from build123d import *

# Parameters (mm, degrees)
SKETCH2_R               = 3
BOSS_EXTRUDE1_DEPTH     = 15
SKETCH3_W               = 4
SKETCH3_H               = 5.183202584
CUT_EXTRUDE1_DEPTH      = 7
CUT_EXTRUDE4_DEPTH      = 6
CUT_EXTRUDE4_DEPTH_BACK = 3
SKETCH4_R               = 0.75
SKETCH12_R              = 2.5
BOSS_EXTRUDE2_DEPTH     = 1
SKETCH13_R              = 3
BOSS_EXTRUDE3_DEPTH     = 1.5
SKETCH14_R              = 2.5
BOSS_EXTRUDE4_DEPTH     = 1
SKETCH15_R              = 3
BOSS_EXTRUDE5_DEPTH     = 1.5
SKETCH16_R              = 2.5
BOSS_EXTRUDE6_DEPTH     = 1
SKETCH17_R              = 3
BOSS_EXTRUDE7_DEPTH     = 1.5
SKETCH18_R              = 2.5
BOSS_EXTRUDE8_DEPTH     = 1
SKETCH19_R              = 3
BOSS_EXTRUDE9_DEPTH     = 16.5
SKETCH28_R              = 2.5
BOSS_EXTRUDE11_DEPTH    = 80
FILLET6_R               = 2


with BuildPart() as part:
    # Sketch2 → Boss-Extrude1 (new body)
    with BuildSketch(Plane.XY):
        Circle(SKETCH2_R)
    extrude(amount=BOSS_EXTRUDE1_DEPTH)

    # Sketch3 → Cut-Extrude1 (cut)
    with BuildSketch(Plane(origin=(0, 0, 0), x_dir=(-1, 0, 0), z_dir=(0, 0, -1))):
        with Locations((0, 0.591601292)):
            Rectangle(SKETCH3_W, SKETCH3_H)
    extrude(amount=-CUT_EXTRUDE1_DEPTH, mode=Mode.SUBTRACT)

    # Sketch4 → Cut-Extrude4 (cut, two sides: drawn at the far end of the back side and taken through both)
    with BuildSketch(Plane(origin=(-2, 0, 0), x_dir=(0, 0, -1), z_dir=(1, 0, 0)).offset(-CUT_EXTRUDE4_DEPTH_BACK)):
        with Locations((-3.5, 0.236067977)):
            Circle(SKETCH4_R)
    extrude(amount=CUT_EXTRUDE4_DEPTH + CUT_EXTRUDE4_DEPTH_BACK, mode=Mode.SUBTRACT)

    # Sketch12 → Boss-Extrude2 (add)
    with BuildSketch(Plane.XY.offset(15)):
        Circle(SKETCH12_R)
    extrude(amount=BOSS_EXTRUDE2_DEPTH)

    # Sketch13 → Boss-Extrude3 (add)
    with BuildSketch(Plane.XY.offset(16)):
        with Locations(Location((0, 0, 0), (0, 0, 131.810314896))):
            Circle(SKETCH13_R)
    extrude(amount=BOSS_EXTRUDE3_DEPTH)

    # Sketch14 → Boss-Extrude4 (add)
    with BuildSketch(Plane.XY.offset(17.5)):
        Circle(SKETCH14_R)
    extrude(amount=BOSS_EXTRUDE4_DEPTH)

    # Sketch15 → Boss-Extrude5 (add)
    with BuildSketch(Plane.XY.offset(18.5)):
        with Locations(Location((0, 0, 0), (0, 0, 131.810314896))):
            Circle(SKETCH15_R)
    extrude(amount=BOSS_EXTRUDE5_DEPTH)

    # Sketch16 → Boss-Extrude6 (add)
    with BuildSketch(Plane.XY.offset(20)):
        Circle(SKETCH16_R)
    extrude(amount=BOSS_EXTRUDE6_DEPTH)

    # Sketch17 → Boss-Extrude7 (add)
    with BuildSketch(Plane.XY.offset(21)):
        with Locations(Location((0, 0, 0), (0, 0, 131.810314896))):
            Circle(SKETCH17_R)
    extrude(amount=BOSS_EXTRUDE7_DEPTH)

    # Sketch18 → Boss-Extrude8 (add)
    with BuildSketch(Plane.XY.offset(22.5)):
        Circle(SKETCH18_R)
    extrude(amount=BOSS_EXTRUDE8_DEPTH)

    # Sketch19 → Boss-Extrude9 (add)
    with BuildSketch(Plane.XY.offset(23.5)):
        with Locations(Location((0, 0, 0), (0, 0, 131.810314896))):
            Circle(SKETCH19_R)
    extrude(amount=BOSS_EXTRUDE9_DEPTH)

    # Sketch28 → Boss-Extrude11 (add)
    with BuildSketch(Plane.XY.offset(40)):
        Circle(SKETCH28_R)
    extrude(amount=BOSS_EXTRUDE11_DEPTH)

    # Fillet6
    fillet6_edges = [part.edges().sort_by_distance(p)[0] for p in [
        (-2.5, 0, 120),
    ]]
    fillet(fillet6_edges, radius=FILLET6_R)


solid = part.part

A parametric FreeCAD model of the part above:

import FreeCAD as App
import Part
import Sketcher
from FreeCAD import Vector


def edges_at(feature, points):
    """Names of the edges that pass closest to the given points."""
    edges = feature.Shape.Edges
    near = lambda p: min(range(len(edges)), key=lambda i: edges[i].distToShape(Part.Vertex(*p))[0])
    return sorted({f"Edge{near(p) + 1}" for p in points})

doc = App.newDocument("Part")
body = doc.addObject("PartDesign::Body", "Body")

sketch1 = doc.addObject("Sketcher::SketchObject", "Sketch")
body.addObject(sketch1)
sketch1.AttachmentSupport = (doc.XY_Plane, [""])
sketch1.MapMode = "FlatFace"
sketch1.addGeometry(Part.Circle(Vector(0, 0, 0), Vector(0, 0, 1), 3), False)
sketch1.addConstraint(Sketcher.Constraint("Coincident", 0, 3, -1, 1))
sketch1.addConstraint(Sketcher.Constraint("Diameter", 0, 6.0))
pad1 = doc.addObject("PartDesign::Pad", "Pad")
body.addObject(pad1)
pad1.Profile = sketch1
pad1.Length = 15

sketch2 = doc.addObject("Sketcher::SketchObject", "Sketch001")
body.addObject(sketch2)
sketch2.AttachmentSupport = (doc.XY_Plane, [""])
sketch2.MapMode = "FlatFace"
sketch2.addGeometry(Part.LineSegment(Vector(2, 3.2, 0), Vector(2, -2, 0)), False)
sketch2.addGeometry(Part.LineSegment(Vector(2, -2, 0), Vector(-2, -2, 0)), False)
sketch2.addGeometry(Part.LineSegment(Vector(-2, -2, 0), Vector(-2, 3.2, 0)), False)
sketch2.addGeometry(Part.LineSegment(Vector(-2, 3.2, 0), Vector(2, 3.2, 0)), False)
sketch2.addConstraint(Sketcher.Constraint("Coincident", 0, 2, 1, 1))
sketch2.addConstraint(Sketcher.Constraint("Coincident", 1, 2, 2, 1))
sketch2.addConstraint(Sketcher.Constraint("Coincident", 2, 2, 3, 1))
sketch2.addConstraint(Sketcher.Constraint("Coincident", 3, 2, 0, 1))
sketch2.addConstraint(Sketcher.Constraint("Vertical", 0))
sketch2.addConstraint(Sketcher.Constraint("Horizontal", 1))
sketch2.addConstraint(Sketcher.Constraint("Vertical", 2))
sketch2.addConstraint(Sketcher.Constraint("Horizontal", 3))
sketch2.addConstraint(Sketcher.Constraint("DistanceX", 1, 2, 1, 1, 4.0))
sketch2.addConstraint(Sketcher.Constraint("DistanceX", -1, 1, 0, 2, 2.0))
sketch2.addConstraint(Sketcher.Constraint("DistanceY", 0, 2, -1, 1, 2.0))
sketch2.addConstraint(Sketcher.Constraint("DistanceY", 0, 2, 0, 1, 5.183203))
pocket1 = doc.addObject("PartDesign::Pocket", "Pocket")
body.addObject(pocket1)
pocket1.Profile = sketch2
pocket1.Length = 7
pocket1.Reversed = True

sketch3 = doc.addObject("Sketcher::SketchObject", "Sketch002")
body.addObject(sketch3)
sketch3.AttachmentSupport = (doc.YZ_Plane, [""])
sketch3.MapMode = "FlatFace"
sketch3.AttachmentOffset = App.Placement(Vector(0, 0, -2), App.Rotation())
sketch3.addGeometry(Part.Circle(Vector(0.2, 3.5, 0), Vector(0, 0, 1), 0.8), False)
sketch3.addConstraint(Sketcher.Constraint("Diameter", 0, 1.5))
sketch3.addConstraint(Sketcher.Constraint("DistanceY", -1, 1, 0, 3, 3.5))
sketch3.addConstraint(Sketcher.Constraint("DistanceX", -1, 1, 0, 3, 0.236068))
pocket2 = doc.addObject("PartDesign::Pocket", "Pocket001")
body.addObject(pocket2)
pocket2.Profile = sketch3
pocket2.Type = "ThroughAll"
pocket2.Midplane = True

sketch4 = doc.addObject("Sketcher::SketchObject", "Sketch003")
body.addObject(sketch4)
sketch4.AttachmentSupport = (doc.XY_Plane, [""])
sketch4.MapMode = "FlatFace"
sketch4.AttachmentOffset = App.Placement(Vector(0, 0, 15), App.Rotation())
sketch4.addGeometry(Part.Circle(Vector(0, 0, 0), Vector(0, 0, 1), 2.5), False)
sketch4.addConstraint(Sketcher.Constraint("Coincident", 0, 3, -1, 1))
sketch4.addConstraint(Sketcher.Constraint("Diameter", 0, 5.0))
pad2 = doc.addObject("PartDesign::Pad", "Pad001")
body.addObject(pad2)
pad2.Profile = sketch4
pad2.Length = 1

sketch5 = doc.addObject("Sketcher::SketchObject", "Sketch004")
body.addObject(sketch5)
sketch5.AttachmentSupport = (doc.XY_Plane, [""])
sketch5.MapMode = "FlatFace"
sketch5.AttachmentOffset = App.Placement(Vector(0, 0, 16), App.Rotation())
sketch5.addGeometry(Part.Circle(Vector(0, 0, 0), Vector(0, 0, 1), 3), False)
sketch5.addConstraint(Sketcher.Constraint("Coincident", 0, 3, -1, 1))
sketch5.addConstraint(Sketcher.Constraint("Diameter", 0, 6.0))
pad3 = doc.addObject("PartDesign::Pad", "Pad002")
body.addObject(pad3)
pad3.Profile = sketch5
pad3.Length = 1.5

sketch6 = doc.addObject("Sketcher::SketchObject", "Sketch005")
body.addObject(sketch6)
sketch6.AttachmentSupport = (doc.XY_Plane, [""])
sketch6.MapMode = "FlatFace"
sketch6.AttachmentOffset = App.Placement(Vector(0, 0, 17.5), App.Rotation())
sketch6.addGeometry(Part.Circle(Vector(0, 0, 0), Vector(0, 0, 1), 2.5), False)
sketch6.addConstraint(Sketcher.Constraint("Coincident", 0, 3, -1, 1))
sketch6.addConstraint(Sketcher.Constraint("Diameter", 0, 5.0))
pad4 = doc.addObject("PartDesign::Pad", "Pad003")
body.addObject(pad4)
pad4.Profile = sketch6
pad4.Length = 1

sketch7 = doc.addObject("Sketcher::SketchObject", "Sketch006")
body.addObject(sketch7)
sketch7.AttachmentSupport = (doc.XY_Plane, [""])
sketch7.MapMode = "FlatFace"
sketch7.AttachmentOffset = App.Placement(Vector(0, 0, 18.5), App.Rotation())
sketch7.addGeometry(Part.Circle(Vector(0, 0, 0), Vector(0, 0, 1), 3), False)
sketch7.addConstraint(Sketcher.Constraint("Coincident", 0, 3, -1, 1))
sketch7.addConstraint(Sketcher.Constraint("Diameter", 0, 6.0))
pad5 = doc.addObject("PartDesign::Pad", "Pad004")
body.addObject(pad5)
pad5.Profile = sketch7
pad5.Length = 1.5

sketch8 = doc.addObject("Sketcher::SketchObject", "Sketch007")
body.addObject(sketch8)
sketch8.AttachmentSupport = (doc.XY_Plane, [""])
sketch8.MapMode = "FlatFace"
sketch8.AttachmentOffset = App.Placement(Vector(0, 0, 20), App.Rotation())
sketch8.addGeometry(Part.Circle(Vector(0, 0, 0), Vector(0, 0, 1), 2.5), False)
sketch8.addConstraint(Sketcher.Constraint("Coincident", 0, 3, -1, 1))
sketch8.addConstraint(Sketcher.Constraint("Diameter", 0, 5.0))
pad6 = doc.addObject("PartDesign::Pad", "Pad005")
body.addObject(pad6)
pad6.Profile = sketch8
pad6.Length = 1

sketch9 = doc.addObject("Sketcher::SketchObject", "Sketch008")
body.addObject(sketch9)
sketch9.AttachmentSupport = (doc.XY_Plane, [""])
sketch9.MapMode = "FlatFace"
sketch9.AttachmentOffset = App.Placement(Vector(0, 0, 21), App.Rotation())
sketch9.addGeometry(Part.Circle(Vector(0, 0, 0), Vector(0, 0, 1), 3), False)
sketch9.addConstraint(Sketcher.Constraint("Coincident", 0, 3, -1, 1))
sketch9.addConstraint(Sketcher.Constraint("Diameter", 0, 6.0))
pad7 = doc.addObject("PartDesign::Pad", "Pad006")
body.addObject(pad7)
pad7.Profile = sketch9
pad7.Length = 1.5

sketch10 = doc.addObject("Sketcher::SketchObject", "Sketch009")
body.addObject(sketch10)
sketch10.AttachmentSupport = (doc.XY_Plane, [""])
sketch10.MapMode = "FlatFace"
sketch10.AttachmentOffset = App.Placement(Vector(0, 0, 22.5), App.Rotation())
sketch10.addGeometry(Part.Circle(Vector(0, 0, 0), Vector(0, 0, 1), 2.5), False)
sketch10.addConstraint(Sketcher.Constraint("Coincident", 0, 3, -1, 1))
sketch10.addConstraint(Sketcher.Constraint("Diameter", 0, 5.0))
pad8 = doc.addObject("PartDesign::Pad", "Pad007")
body.addObject(pad8)
pad8.Profile = sketch10
pad8.Length = 1

sketch11 = doc.addObject("Sketcher::SketchObject", "Sketch010")
body.addObject(sketch11)
sketch11.AttachmentSupport = (doc.XY_Plane, [""])
sketch11.MapMode = "FlatFace"
sketch11.AttachmentOffset = App.Placement(Vector(0, 0, 23.5), App.Rotation())
sketch11.addGeometry(Part.Circle(Vector(0, 0, 0), Vector(0, 0, 1), 3), False)
sketch11.addConstraint(Sketcher.Constraint("Coincident", 0, 3, -1, 1))
sketch11.addConstraint(Sketcher.Constraint("Diameter", 0, 6.0))
pad9 = doc.addObject("PartDesign::Pad", "Pad008")
body.addObject(pad9)
pad9.Profile = sketch11
pad9.Length = 16.5

sketch12 = doc.addObject("Sketcher::SketchObject", "Sketch011")
body.addObject(sketch12)
sketch12.AttachmentSupport = (doc.XY_Plane, [""])
sketch12.MapMode = "FlatFace"
sketch12.AttachmentOffset = App.Placement(Vector(0, 0, 40), App.Rotation())
sketch12.addGeometry(Part.Circle(Vector(0, 0, 0), Vector(0, 0, 1), 2.5), False)
sketch12.addConstraint(Sketcher.Constraint("Coincident", 0, 3, -1, 1))
sketch12.addConstraint(Sketcher.Constraint("Diameter", 0, 5.0))
pad10 = doc.addObject("PartDesign::Pad", "Pad009")
body.addObject(pad10)
pad10.Profile = sketch12
pad10.Length = 80
doc.recompute()

fillet = doc.addObject("PartDesign::Fillet", "Fillet")
body.addObject(fillet)
fillet.Base = (pad10, edges_at(pad10, [(-2.5, 0, 120)]))
fillet.Radius = 2

doc.recompute()
